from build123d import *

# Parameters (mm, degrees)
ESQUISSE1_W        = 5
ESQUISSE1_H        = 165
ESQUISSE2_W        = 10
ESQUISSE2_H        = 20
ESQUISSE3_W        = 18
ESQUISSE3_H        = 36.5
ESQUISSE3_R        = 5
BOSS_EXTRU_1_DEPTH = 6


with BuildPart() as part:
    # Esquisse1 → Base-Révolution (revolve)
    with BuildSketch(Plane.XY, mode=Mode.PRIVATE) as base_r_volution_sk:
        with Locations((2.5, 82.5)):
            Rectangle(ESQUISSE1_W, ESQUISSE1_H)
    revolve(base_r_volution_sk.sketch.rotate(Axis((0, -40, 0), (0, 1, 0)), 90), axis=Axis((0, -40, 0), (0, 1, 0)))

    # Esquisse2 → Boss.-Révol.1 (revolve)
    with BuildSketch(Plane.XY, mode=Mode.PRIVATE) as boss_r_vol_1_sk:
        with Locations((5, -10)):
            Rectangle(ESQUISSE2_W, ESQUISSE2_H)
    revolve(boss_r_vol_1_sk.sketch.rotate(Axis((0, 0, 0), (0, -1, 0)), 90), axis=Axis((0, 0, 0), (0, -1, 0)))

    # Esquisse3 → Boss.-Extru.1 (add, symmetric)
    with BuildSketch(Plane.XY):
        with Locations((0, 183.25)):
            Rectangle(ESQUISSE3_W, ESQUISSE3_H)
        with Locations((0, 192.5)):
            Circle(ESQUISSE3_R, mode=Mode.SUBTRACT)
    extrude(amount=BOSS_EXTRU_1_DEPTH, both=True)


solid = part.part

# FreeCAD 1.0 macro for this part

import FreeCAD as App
import Part
import Sketcher

V = App.Vector


def add_polygon(sketch, points):
    """Adds a closed chain of lines whose ends are joined by coincident constraints."""
    first, n = sketch.GeometryCount, len(points)
    for a, b in zip(points, points[1:] + points[:1]):
        sketch.addGeometry(Part.LineSegment(App.Vector(*a, 0), App.Vector(*b, 0)), False)
    for i in range(n):
        sketch.addConstraint(Sketcher.Constraint("Coincident", first + i, 2, first + (i + 1) % n, 1))

doc = App.newDocument("Part")
body = doc.addObject("PartDesign::Body", "Body")

# Sketch on XY plane
sketch1 = body.newObject("Sketcher::SketchObject", "Sketch")
sketch1.AttachmentSupport = (doc.getObject("XY_Plane"), [""])
sketch1.MapMode = "FlatFace"
add_polygon(sketch1, [(0, 165), (0, 0), (5, 0), (5, 165)])  # lines 0-3
sketch1.addConstraint([
    Sketcher.Constraint("Vertical", 0),
    Sketcher.Constraint("Horizontal", 1),
    Sketcher.Constraint("Vertical", 2),
    Sketcher.Constraint("Horizontal", 3),
    Sketcher.Constraint("Coincident", 0, 2, -1, 1),
    Sketcher.Constraint("DistanceX", 1, 1, 1, 2, 5.0),
    Sketcher.Constraint("DistanceY", 0, 2, 0, 1, 165.0),
])
revolution = body.newObject("PartDesign::Revolution", "Revolution")
revolution.Profile = sketch1
revolution.ReferenceAxis = (sketch1, ["V_Axis"])
revolution.Angle = 360

# Sketch on XY plane
sketch2 = body.newObject("Sketcher::SketchObject", "Sketch001")
sketch2.AttachmentSupport = (doc.getObject("XY_Plane"), [""])
sketch2.MapMode = "FlatFace"
add_polygon(sketch2, [(0, 0), (0, -20), (10, -20), (10, 0)])  # lines 0-3
sketch2.addConstraint([
    Sketcher.Constraint("Vertical", 0),
    Sketcher.Constraint("Horizontal", 1),
    Sketcher.Constraint("Vertical", 2),
    Sketcher.Constraint("Horizontal", 3),
    Sketcher.Constraint("Coincident", 3, 2, -1, 1),
    Sketcher.Constraint("DistanceX", 1, 1, 1, 2, 10.0),
    Sketcher.Constraint("DistanceY", 0, 2, 0, 1, 20.0),
])
revolution2 = body.newObject("PartDesign::Revolution", "Revolution001")
revolution2.Profile = sketch2
revolution2.ReferenceAxis = (sketch2, ["V_Axis"])
revolution2.Angle = 360

# Sketch on XY plane
sketch3 = body.newObject("Sketcher::SketchObject", "Sketch002")
sketch3.AttachmentSupport = (doc.getObject("XY_Plane"), [""])
sketch3.MapMode = "FlatFace"
add_polygon(sketch3, [(-9, 202), (-9, 165), (9, 165), (9, 202)])  # lines 0-3
sketch3.addGeometry(Part.Circle(V(0, 192, 0), V(0, 0, 1), 5), False)  # 4
sketch3.addConstraint([
    Sketcher.Constraint("Vertical", 0),
    Sketcher.Constraint("Horizontal", 1),
    Sketcher.Constraint("Vertical", 2),
    Sketcher.Constraint("Horizontal", 3),
    Sketcher.Constraint("PointOnObject", 4, 3, -2),
    Sketcher.Constraint("Diameter", 4, 10.0),
    Sketcher.Constraint("DistanceX", 1, 1, 1, 2, 18.0),
    Sketcher.Constraint("DistanceY", 0, 2, 0, 1, 36.5),
    Sketcher.Constraint("DistanceX", 0, 2, -1, 1, 9.0),
    Sketcher.Constraint("DistanceY", -1, 1, 0, 2, 165.0),
    Sketcher.Constraint("DistanceY", 4, 3, 2, 2, 9.0),
])
pad1 = body.newObject("PartDesign::Pad", "Pad")
pad1.Profile = sketch3
pad1.Length = 12
pad1.Midplane = True

doc.recompute()
